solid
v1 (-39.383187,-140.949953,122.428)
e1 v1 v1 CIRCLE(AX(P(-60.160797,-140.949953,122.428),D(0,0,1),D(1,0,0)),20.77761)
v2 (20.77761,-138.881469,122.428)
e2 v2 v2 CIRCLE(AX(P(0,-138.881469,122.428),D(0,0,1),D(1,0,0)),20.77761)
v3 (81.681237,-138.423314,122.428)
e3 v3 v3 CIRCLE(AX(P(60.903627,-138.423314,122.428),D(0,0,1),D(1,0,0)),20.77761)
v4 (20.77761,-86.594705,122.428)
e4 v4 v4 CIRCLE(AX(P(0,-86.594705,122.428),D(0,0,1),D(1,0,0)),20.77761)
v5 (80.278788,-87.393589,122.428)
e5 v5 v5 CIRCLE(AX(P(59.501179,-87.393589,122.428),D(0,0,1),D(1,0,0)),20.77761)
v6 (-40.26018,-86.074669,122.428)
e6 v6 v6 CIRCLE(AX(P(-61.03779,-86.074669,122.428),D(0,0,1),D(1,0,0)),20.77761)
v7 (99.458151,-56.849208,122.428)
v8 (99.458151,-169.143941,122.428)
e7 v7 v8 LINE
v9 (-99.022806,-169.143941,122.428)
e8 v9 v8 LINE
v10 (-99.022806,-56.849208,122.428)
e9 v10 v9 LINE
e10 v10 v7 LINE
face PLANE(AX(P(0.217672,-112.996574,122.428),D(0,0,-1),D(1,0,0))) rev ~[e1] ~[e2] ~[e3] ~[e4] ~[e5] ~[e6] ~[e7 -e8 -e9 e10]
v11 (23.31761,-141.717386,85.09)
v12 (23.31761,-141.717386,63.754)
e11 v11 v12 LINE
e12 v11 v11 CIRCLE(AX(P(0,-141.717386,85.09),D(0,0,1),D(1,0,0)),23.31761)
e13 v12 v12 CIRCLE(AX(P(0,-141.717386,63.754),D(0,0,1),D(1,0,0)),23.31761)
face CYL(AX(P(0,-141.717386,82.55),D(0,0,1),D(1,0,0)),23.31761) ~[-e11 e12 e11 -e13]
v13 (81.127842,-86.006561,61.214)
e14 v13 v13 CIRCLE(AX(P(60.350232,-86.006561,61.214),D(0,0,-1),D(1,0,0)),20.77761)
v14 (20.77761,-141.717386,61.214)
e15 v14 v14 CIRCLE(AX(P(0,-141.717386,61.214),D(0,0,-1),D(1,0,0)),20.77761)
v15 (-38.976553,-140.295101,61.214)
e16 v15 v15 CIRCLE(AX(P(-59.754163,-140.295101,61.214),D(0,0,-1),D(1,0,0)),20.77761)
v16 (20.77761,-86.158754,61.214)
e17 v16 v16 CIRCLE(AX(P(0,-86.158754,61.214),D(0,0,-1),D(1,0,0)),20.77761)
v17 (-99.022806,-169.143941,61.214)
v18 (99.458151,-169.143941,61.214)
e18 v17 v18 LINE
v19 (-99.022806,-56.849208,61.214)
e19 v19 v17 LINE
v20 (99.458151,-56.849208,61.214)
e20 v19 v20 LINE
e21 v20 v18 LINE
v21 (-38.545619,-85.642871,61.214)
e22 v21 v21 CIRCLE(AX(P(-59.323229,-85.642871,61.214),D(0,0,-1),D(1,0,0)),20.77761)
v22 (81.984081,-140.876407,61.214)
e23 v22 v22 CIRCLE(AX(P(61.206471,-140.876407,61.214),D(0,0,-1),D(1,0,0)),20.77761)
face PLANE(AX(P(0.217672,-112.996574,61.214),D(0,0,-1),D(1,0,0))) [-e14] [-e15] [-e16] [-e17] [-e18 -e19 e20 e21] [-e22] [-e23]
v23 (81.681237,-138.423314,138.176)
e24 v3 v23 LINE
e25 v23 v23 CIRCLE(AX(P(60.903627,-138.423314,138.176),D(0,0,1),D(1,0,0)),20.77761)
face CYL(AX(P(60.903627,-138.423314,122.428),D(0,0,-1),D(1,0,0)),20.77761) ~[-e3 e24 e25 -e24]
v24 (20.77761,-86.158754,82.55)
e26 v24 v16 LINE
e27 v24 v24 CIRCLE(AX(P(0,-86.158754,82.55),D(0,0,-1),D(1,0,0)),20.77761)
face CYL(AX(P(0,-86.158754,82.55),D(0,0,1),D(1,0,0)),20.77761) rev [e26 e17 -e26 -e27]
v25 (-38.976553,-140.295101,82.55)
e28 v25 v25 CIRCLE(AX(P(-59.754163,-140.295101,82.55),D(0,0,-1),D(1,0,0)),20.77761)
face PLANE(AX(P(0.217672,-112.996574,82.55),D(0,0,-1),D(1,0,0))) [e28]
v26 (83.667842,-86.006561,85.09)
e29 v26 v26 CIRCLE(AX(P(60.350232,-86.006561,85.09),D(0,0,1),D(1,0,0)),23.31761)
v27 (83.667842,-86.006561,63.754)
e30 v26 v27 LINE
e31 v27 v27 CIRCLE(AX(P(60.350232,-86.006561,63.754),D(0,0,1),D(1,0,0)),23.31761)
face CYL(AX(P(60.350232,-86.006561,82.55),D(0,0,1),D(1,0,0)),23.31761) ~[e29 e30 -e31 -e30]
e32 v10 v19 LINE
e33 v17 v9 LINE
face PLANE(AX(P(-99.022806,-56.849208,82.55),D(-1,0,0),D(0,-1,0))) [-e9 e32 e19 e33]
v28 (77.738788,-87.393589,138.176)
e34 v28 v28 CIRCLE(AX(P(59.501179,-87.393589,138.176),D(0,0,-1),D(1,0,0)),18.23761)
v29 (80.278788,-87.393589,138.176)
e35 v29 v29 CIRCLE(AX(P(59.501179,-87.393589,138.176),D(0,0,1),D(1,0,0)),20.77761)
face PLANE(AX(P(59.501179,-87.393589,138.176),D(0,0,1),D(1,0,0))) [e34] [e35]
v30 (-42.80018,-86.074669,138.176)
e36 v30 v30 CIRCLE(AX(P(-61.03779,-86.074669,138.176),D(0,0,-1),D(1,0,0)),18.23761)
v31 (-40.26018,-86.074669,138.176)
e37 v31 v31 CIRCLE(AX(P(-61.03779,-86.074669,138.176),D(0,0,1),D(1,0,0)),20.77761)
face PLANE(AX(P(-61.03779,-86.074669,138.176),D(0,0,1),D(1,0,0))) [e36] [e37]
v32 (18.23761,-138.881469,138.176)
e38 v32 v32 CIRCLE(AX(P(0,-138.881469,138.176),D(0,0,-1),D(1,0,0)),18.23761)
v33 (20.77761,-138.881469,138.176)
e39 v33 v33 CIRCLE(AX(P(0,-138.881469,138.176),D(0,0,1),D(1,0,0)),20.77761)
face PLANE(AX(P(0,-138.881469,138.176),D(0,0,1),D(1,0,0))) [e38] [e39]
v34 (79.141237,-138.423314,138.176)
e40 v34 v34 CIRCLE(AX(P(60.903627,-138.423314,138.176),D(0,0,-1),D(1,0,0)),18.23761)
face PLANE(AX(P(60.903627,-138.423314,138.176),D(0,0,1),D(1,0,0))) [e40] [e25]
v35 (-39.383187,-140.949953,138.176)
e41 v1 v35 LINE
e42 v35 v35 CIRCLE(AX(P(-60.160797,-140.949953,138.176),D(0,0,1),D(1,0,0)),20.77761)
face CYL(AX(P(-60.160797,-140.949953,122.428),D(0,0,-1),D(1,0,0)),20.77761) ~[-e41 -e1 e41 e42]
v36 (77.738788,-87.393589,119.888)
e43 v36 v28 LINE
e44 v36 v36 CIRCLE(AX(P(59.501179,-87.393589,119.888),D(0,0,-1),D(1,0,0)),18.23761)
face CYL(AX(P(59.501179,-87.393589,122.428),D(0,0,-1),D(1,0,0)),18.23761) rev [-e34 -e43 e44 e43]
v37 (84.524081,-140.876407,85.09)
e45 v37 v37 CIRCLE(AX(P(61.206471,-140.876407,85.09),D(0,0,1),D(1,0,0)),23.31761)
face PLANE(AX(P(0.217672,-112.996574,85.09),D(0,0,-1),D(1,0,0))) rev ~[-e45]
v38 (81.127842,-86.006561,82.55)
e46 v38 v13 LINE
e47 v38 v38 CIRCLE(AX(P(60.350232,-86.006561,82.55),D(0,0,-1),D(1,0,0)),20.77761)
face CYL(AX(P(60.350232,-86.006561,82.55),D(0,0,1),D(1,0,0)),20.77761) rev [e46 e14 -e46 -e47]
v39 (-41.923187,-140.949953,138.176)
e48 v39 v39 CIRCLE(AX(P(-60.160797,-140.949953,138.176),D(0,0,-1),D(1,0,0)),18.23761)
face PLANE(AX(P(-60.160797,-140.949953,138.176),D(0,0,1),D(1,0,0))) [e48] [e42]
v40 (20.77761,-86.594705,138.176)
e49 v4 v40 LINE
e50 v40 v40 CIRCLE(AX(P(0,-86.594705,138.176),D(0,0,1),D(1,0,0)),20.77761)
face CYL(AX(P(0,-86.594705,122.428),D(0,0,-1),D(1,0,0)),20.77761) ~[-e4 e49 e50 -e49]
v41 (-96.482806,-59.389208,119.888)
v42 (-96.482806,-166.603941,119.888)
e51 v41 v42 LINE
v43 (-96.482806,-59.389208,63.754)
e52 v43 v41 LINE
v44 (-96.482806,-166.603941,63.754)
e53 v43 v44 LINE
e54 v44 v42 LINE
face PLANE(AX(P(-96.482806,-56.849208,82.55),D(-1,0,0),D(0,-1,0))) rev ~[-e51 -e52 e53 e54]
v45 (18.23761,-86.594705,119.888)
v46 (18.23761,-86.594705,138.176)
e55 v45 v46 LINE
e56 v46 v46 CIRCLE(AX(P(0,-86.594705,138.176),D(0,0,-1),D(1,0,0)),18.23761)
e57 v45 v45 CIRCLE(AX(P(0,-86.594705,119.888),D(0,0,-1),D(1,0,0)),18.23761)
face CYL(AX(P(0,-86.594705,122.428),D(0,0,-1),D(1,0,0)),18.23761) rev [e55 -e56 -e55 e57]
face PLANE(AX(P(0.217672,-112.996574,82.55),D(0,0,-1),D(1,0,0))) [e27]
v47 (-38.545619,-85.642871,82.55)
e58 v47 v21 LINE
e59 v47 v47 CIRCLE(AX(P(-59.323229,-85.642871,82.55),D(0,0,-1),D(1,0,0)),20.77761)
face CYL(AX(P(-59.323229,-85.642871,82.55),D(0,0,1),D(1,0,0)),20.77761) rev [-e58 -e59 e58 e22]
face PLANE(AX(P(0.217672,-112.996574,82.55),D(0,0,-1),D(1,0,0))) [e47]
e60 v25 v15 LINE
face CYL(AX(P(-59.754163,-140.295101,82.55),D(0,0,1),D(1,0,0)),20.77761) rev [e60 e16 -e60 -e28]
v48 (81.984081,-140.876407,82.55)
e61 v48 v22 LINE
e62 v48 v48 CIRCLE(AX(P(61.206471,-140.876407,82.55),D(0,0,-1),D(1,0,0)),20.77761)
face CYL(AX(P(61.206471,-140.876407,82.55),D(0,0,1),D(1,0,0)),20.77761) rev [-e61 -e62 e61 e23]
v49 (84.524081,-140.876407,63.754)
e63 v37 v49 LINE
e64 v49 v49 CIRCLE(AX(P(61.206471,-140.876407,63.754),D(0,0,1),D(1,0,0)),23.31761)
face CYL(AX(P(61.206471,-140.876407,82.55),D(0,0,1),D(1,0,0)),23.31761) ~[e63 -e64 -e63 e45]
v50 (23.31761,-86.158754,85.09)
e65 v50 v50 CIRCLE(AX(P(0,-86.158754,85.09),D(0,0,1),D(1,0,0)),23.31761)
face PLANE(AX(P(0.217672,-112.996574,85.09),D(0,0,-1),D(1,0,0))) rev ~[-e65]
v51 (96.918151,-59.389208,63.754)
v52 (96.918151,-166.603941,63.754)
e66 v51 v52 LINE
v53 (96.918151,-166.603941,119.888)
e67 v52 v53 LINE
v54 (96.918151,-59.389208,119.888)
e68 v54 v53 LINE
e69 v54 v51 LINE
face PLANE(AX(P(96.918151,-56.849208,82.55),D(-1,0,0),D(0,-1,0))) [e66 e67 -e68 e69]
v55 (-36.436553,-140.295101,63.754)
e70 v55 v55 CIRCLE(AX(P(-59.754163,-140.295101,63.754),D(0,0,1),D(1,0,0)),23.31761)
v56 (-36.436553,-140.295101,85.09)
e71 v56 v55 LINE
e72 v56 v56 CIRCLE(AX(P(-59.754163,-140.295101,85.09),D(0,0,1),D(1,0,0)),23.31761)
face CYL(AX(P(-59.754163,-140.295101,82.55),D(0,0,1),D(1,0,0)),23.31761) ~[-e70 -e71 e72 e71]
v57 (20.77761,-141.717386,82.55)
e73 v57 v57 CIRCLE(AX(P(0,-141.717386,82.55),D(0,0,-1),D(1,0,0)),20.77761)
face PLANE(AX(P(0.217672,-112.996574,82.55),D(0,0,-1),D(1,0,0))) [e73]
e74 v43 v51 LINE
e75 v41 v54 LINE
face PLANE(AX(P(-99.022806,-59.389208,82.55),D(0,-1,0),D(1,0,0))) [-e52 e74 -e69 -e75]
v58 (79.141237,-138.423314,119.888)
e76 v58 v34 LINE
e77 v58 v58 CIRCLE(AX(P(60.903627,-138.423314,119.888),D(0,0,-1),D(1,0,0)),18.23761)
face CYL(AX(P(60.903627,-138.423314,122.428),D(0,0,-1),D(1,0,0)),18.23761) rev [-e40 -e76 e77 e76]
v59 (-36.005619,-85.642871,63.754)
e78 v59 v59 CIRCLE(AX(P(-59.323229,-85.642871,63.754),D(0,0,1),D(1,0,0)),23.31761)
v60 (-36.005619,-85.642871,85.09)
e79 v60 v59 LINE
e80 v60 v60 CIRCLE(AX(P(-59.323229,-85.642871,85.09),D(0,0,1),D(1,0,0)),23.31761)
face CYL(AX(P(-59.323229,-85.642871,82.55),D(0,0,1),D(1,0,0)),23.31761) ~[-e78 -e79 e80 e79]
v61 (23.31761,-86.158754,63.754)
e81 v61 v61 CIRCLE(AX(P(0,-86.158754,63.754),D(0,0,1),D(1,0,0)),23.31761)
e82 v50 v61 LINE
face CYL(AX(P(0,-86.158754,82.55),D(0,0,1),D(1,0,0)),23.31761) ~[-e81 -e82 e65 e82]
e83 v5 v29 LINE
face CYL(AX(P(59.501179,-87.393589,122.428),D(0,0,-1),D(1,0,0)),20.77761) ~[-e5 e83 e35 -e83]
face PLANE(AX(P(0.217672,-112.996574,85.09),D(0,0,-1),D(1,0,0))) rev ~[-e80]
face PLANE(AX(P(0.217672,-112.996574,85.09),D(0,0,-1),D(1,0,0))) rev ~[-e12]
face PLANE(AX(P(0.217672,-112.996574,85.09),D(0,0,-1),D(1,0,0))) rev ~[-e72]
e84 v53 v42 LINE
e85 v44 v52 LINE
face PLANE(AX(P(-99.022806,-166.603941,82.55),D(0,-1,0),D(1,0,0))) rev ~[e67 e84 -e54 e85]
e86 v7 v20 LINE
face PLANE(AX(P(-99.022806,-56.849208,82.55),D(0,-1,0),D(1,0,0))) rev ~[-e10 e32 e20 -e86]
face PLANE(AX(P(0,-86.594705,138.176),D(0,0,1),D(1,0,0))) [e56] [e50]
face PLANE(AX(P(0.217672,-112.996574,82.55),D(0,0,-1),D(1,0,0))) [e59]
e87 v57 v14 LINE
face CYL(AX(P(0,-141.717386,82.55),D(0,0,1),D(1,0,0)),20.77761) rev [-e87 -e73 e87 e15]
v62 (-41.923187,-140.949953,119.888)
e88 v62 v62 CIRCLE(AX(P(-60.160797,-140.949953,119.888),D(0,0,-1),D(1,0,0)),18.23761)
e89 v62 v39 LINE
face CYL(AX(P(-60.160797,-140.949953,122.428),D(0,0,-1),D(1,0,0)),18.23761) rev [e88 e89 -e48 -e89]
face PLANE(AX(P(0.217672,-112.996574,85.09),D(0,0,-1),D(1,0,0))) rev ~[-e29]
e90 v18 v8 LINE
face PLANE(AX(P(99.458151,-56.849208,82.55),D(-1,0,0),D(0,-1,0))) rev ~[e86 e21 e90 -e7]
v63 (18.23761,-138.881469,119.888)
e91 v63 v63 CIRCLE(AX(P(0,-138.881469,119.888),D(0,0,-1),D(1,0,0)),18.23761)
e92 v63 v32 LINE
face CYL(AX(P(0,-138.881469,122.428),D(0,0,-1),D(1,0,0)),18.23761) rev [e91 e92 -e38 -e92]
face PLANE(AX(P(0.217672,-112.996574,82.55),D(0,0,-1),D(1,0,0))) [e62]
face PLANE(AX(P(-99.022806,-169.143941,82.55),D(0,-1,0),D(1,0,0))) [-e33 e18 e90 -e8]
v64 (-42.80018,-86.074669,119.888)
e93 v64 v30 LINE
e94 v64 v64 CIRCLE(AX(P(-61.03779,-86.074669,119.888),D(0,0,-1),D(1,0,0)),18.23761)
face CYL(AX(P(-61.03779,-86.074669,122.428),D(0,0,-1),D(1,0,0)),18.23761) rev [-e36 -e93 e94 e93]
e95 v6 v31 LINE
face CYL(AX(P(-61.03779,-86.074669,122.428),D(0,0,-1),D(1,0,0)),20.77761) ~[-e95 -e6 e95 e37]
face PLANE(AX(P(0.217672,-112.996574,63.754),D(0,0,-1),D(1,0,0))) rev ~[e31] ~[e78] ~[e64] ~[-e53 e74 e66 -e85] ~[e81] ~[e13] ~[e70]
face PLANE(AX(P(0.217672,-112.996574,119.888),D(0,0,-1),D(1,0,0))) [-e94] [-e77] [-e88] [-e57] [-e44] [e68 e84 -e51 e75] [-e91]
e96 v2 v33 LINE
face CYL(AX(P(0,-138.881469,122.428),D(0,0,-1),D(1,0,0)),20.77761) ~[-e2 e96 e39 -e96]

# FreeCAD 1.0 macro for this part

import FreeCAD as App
import Part
import Sketcher
from FreeCAD import Vector
Q = App.Units.Quantity


def faces_at(feature, points):
    """Names of the faces that lie closest to the given points."""
    faces = feature.Shape.Faces
    near = lambda p: min(range(len(faces)), key=lambda i: faces[i].distToShape(Part.Vertex(*p))[0])
    return sorted({f"Face{near(p) + 1}" for p in points})


def add_polygon(sketch, points):
    """Adds a closed chain of lines whose ends are joined by coincident constraints."""
    first, n = sketch.GeometryCount, len(points)
    for a, b in zip(points, points[1:] + points[:1]):
        sketch.addGeometry(Part.LineSegment(App.Vector(*a, 0), App.Vector(*b, 0)), False)
    for i in range(n):
        sketch.addConstraint(Sketcher.Constraint("Coincident", first + i, 2, first + (i + 1) % n, 1))

doc = App.newDocument("Part")
body = doc.addObject("PartDesign::Body", "Body")

# Sketch on XY plane
sketch1 = body.newObject("Sketcher::SketchObject", "Sketch")
sketch1.AttachmentSupport = (doc.getObject("XY_Plane"), [""])
sketch1.MapMode = "FlatFace"
add_polygon(sketch1, [(-99, 55), (-99, -57), (99, -57), (99, 55)])  # lines 0-3
sketch1.addConstraint([
    Sketcher.Constraint("Vertical", 0),
    Sketcher.Constraint("Horizontal", 1),
    Sketcher.Constraint("Vertical", 2),
    Sketcher.Constraint("Horizontal", 3),
    Sketcher.Constraint("DistanceX", 1, 1, 1, 2, Q("198.480956 mm")),
    Sketcher.Constraint("DistanceY", 0, 2, 0, 1, Q("112.294734 mm")),
    Sketcher.Constraint("DistanceX", -1, 1, 1, 2, Q("99.458151 mm")),
    Sketcher.Constraint("DistanceY", 0, 2, -1, 1, Q("56.849208 mm")),
])
pad1 = body.newObject("PartDesign::Pad", "Pad")
pad1.Profile = sketch1
pad1.Length = Q("1.57 in")

# Sketch on XY plane
sketch2 = body.newObject("Sketcher::SketchObject", "Sketch001")
sketch2.AttachmentSupport = (doc.getObject("XY_Plane"), [""])
sketch2.MapMode = "FlatFace"
sketch2.addGeometry([
    Part.Circle(Vector(-61, -28, 0), Vector(0, 0, 1), 21),  # 0
    Part.Circle(Vector(-60, 27, 0), Vector(0, 0, 1), 21),  # 1
    Part.Circle(Vector(0, 25, 0), Vector(0, 0, 1), 21),  # 2
    Part.Circle(Vector(0, -27, 0), Vector(0, 0, 1), 21),  # 3
    Part.Circle(Vector(61, 25, 0), Vector(0, 0, 1), 21),  # 4
    Part.Circle(Vector(60, -26, 0), Vector(0, 0, 1), 21),  # 5
], False)
sketch2.addConstraint([
    Sketcher.Constraint("Equal", 0, 1),
    Sketcher.Constraint("Equal", 1, 2),
    Sketcher.Constraint("Equal", 2, 3),
    Sketcher.Constraint("Equal", 3, 4),
    Sketcher.Constraint("Equal", 4, 5),
    Sketcher.Constraint("PointOnObject", 2, 3, -2),
    Sketcher.Constraint("PointOnObject", 3, 3, -2),
    Sketcher.Constraint("Diameter", 0, Q("41.55522 mm")),
    Sketcher.Constraint("DistanceY", -1, 1, 4, 3, Q("24.724899 mm")),
    Sketcher.Constraint("DistanceY", 0, 3, 2, 3, Q("52.8068 mm")),
    Sketcher.Constraint("DistanceX", 0, 3, -1, 1, Q("61.03779 mm")),
    Sketcher.Constraint("DistanceY", 3, 3, -1, 1, Q("27.10371 mm")),
    Sketcher.Constraint("DistanceX", -1, 1, 5, 3, Q("59.501179 mm")),
    Sketcher.Constraint("DistanceY", 3, 3, 1, 3, Q("54.355248 mm")),
    Sketcher.Constraint("DistanceX", 5, 3, 4, 3, Q("1.402449 mm")),
    Sketcher.Constraint("DistanceY", 5, 3, 2, 3, Q("51.48788 mm")),
    Sketcher.Constraint("DistanceY", 0, 3, -1, 1, Q("27.623747 mm")),
    Sketcher.Constraint("DistanceX", 1, 3, -1, 1, Q("60.160797 mm")),
])
pad2 = body.newObject("PartDesign::Pad", "Pad001")
pad2.Profile = sketch2
pad2.Length = Q("0.62 in")
pad2.Reversed = True

# Sketch on XY plane
sketch3 = body.newObject("Sketcher::SketchObject", "Sketch002")
sketch3.AttachmentSupport = (doc.getObject("XY_Plane"), [""])
sketch3.MapMode = "FlatFace"
sketch3.AttachmentOffset = App.Placement(Vector(0, 0, 1.57 * 25.4), App.Rotation())
add_polygon(sketch3, [(-99, 55), (-99, -57), (99, -57), (99, 55)])  # lines 0-3
sketch3.addGeometry(Part.Circle(Vector(-59, -28, 0), Vector(0, 0, 1), 21), False)  # 4
sketch3.addGeometry(Part.Circle(Vector(0, -28, 0), Vector(0, 0, 1), 21), False)  # 5
sketch3.addGeometry(Part.Circle(Vector(60, -28, 0), Vector(0, 0, 1), 21), False)  # 6
sketch3.addGeometry(Part.Circle(Vector(-60, 27, 0), Vector(0, 0, 1), 21), False)  # 7
sketch3.addGeometry(Part.Circle(Vector(0, 28, 0), Vector(0, 0, 1), 21), False)  # 8
sketch3.addGeometry(Part.Circle(Vector(61, 27, 0), Vector(0, 0, 1), 21), False)  # 9
sketch3.addConstraint([
    Sketcher.Constraint("Vertical", 0),
    Sketcher.Constraint("Horizontal", 1),
    Sketcher.Constraint("Vertical", 2),
    Sketcher.Constraint("Horizontal", 3),
    Sketcher.Constraint("Equal", 4, 5),
    Sketcher.Constraint("Equal", 5, 6),
    Sketcher.Constraint("Equal", 6, 7),
    Sketcher.Constraint("Equal", 7, 8),
    Sketcher.Constraint("Equal", 8, 9),
    Sketcher.Constraint("PointOnObject", 5, 3, -2),
    Sketcher.Constraint("PointOnObject", 8, 3, -2),
    Sketcher.Constraint("Diameter", 4, Q("41.55522 mm")),
    Sketcher.Constraint("DistanceX", 4, 3, 9, 3, Q("120.5297 mm")),
    Sketcher.Constraint("DistanceY", 1, 2, 9, 3, Q("84.027199 mm")),
    Sketcher.Constraint("DistanceX", 1, 1, 1, 2, Q("198.480956 mm")),
    Sketcher.Constraint("DistanceY", 0, 2, 0, 1, Q("112.294734 mm")),
    Sketcher.Constraint("DistanceX", 4, 3, -1, 1, Q("59.323229 mm")),
    Sketcher.Constraint("DistanceY", 5, 3, -1, 1, Q("27.539661 mm")),
    Sketcher.Constraint("DistanceX", -1, 1, 6, 3, Q("60.350232 mm")),
    Sketcher.Constraint("DistanceY", -1, 1, 8, 3, Q("28.01897 mm")),
    Sketcher.Constraint("DistanceY", -1, 1, 9, 3, Q("27.177991 mm")),
    Sketcher.Constraint("DistanceX", -1, 1, 1, 2, Q("99.458151 mm")),
    Sketcher.Constraint("DistanceY", 4, 3, 6, 3, Q("0.363691 mm")),
    Sketcher.Constraint("DistanceY", 4, 3, 7, 3, Q("54.652231 mm")),
    Sketcher.Constraint("DistanceY", 6, 3, 2, 2, Q("83.13738 mm")),
    Sketcher.Constraint("DistanceX", 7, 3, -1, 1, Q("59.754163 mm")),
])
pad3 = body.newObject("PartDesign::Pad", "Pad002")
pad3.Profile = sketch3
pad3.Length = Q("0.84 in")
body2 = doc.addObject("PartDesign::Body", "Body001")
doc.recompute()

body.Placement = App.Placement(Vector(0, -113.698415, 122.428), App.Rotation(Vector(1, 0, 0), 180))
boolean = body2.newObject("PartDesign::Boolean", "Boolean")
boolean.Type = "Fuse"
boolean.addObjects([body])
doc.recompute()

thickness = body2.newObject("PartDesign::Thickness", "Thickness")
thickness.Base = (boolean, faces_at(boolean, [
    (-60.161, -140.95, 138.176),
    (-61.038, -86.075, 138.176),
    (0, -86.595, 138.176),
    (0, -138.881, 138.176),
    (60.904, -138.423, 138.176),
    (59.501, -87.394, 138.176),
]))
thickness.Value = Q("0.1 in")
thickness.Reversed = True
thickness.Join = "Intersection"

doc.recompute()
